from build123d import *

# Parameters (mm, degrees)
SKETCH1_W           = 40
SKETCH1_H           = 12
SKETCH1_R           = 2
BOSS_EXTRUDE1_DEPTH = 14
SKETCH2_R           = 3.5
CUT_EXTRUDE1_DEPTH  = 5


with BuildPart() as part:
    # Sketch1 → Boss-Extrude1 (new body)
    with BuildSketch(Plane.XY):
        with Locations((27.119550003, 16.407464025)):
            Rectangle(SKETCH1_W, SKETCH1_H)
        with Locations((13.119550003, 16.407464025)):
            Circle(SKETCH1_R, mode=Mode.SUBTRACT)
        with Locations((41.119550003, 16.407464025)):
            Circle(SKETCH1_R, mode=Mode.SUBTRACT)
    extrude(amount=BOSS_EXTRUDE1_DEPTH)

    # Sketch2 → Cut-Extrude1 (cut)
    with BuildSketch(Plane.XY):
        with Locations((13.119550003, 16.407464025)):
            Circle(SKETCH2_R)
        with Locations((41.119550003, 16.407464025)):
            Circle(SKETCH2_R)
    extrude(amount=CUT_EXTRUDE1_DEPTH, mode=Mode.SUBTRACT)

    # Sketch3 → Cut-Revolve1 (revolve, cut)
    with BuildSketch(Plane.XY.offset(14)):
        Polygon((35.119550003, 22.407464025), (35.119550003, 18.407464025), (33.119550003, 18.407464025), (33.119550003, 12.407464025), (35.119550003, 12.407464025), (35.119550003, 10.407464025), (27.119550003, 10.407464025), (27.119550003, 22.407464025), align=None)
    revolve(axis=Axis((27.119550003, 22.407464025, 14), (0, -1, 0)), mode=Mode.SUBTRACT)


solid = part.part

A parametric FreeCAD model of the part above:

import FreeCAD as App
import Part
import Sketcher
Q = App.Units.Quantity

doc = App.newDocument("Part")
params = doc.addObject("Spreadsheet::Sheet", "Params")
for row, (alias, value) in enumerate([
    ("sketch1_diameter", "4 mm"),
    ("sketch1_width", "40 mm"),
    ("sketch1_height", "12 mm"),
    ("pad1_length", "14 mm"),
    ("sketch2_diameter", "7 mm"),
    ("pocket1_length", "5 mm"),
    ("sketch3_width", "8 mm"),
    ("sketch3_width2", "2 mm"),
    ("sketch3_height", "4 mm"),
    ("sketch3_height2", "12 mm"),
    ("groove_angle", "360 deg"),
], start=1):
    params.set(f"A{row}", alias)
    params.set(f"B{row}", "=" + value)
    params.setAlias(f"B{row}", alias)

body = doc.addObject("PartDesign::Body", "Body")

sketch1 = body.newObject("Sketcher::SketchObject", "Sketch")
sketch1.AttachmentSupport = (doc.getObject("XY_Plane"), [""])
sketch1.MapMode = "FlatFace"
sketch1.addGeometry([
    Part.LineSegment(App.Vector(7.1, 22.4, 0), App.Vector(7.1, 10.4, 0)),
    Part.LineSegment(App.Vector(7.1, 10.4, 0), App.Vector(47.1, 10.4, 0)),
    Part.LineSegment(App.Vector(47.1, 10.4, 0), App.Vector(47.1, 22.4, 0)),
    Part.LineSegment(App.Vector(47.1, 22.4, 0), App.Vector(7.1, 22.4, 0)),
    Part.Circle(App.Vector(13.1, 16.4, 0), App.Vector(0, 0, 1), 2),
    Part.Circle(App.Vector(41.1, 16.4, 0), App.Vector(0, 0, 1), 2),
], False)
sketch1.addConstraint([
    Sketcher.Constraint("Coincident", 0, 2, 1, 1),
    Sketcher.Constraint("Coincident", 1, 2, 2, 1),
    Sketcher.Constraint("Coincident", 2, 2, 3, 1),
    Sketcher.Constraint("Coincident", 3, 2, 0, 1),
    Sketcher.Constraint("Vertical", 0),
    Sketcher.Constraint("Horizontal", 1),
    Sketcher.Constraint("Vertical", 2),
    Sketcher.Constraint("Horizontal", 3),
    Sketcher.Constraint("Equal", 4, 5),
    Sketcher.Constraint("Horizontal", 4, 3, 5, 3),
    Sketcher.Constraint("Diameter", 4, Q("4 mm")),
    Sketcher.Constraint("DistanceX", 1, 1, 1, 2, Q("40 mm")),
    Sketcher.Constraint("DistanceY", 0, 2, 0, 1, Q("12 mm")),
    Sketcher.Constraint("DistanceX", 4, 3, 5, 3, Q("28 mm")),
    Sketcher.Constraint("DistanceX", 0, 2, 4, 3, Q("6 mm")),
    Sketcher.Constraint("DistanceY", 0, 2, 4, 3, Q("6 mm")),
    Sketcher.Constraint("DistanceX", -1, 1, 4, 3, Q("13.11955 mm")),
    Sketcher.Constraint("DistanceY", -1, 1, 4, 3, Q("16.407464 mm")),
])
sketch1.setExpression("Constraints[10]", "Params.sketch1_diameter")
sketch1.setExpression("Constraints[11]", "Params.sketch1_width")
sketch1.setExpression("Constraints[12]", "Params.sketch1_height")
pad1 = body.newObject("PartDesign::Pad", "Pad")
pad1.Profile = sketch1
pad1.setExpression("Length", "Params.pad1_length")

sketch2 = body.newObject("Sketcher::SketchObject", "Sketch001")
sketch2.AttachmentSupport = (doc.getObject("XY_Plane"), [""])
sketch2.MapMode = "FlatFace"
sketch2.addGeometry([
    Part.Circle(App.Vector(13.1, 16.4, 0), App.Vector(0, 0, 1), 3.5),
    Part.Circle(App.Vector(41.1, 16.4, 0), App.Vector(0, 0, 1), 3.5),
], False)
sketch2.addConstraint([
    Sketcher.Constraint("Equal", 0, 1),
    Sketcher.Constraint("Horizontal", 0, 3, 1, 3),
    Sketcher.Constraint("Diameter", 0, Q("7 mm")),
    Sketcher.Constraint("DistanceX", 0, 3, 1, 3, Q("28 mm")),
    Sketcher.Constraint("DistanceX", -1, 1, 0, 3, Q("13.11955 mm")),
    Sketcher.Constraint("DistanceY", -1, 1, 0, 3, Q("16.407464 mm")),
])
sketch2.setExpression("Constraints[2]", "Params.sketch2_diameter")
pocket1 = body.newObject("PartDesign::Pocket", "Pocket")
pocket1.Profile = sketch2
pocket1.setExpression("Length", "Params.pocket1_length")
pocket1.Reversed = True

sketch3 = body.newObject("Sketcher::SketchObject", "Sketch002")
sketch3.AttachmentSupport = (doc.getObject("XY_Plane"), [""])
sketch3.MapMode = "FlatFace"
sketch3.AttachmentOffset = App.Placement(App.Vector(0, 0, 14), App.Rotation())
sketch3.addGeometry([
    Part.LineSegment(App.Vector(35.1, 18.4, 0), App.Vector(35.1, 22.4, 0)),
    Part.LineSegment(App.Vector(35.1, 22.4, 0), App.Vector(27.1, 22.4, 0)),
    Part.LineSegment(App.Vector(27.1, 22.4, 0), App.Vector(27.1, 10.4, 0)),
    Part.LineSegment(App.Vector(27.1, 10.4, 0), App.Vector(35.1, 10.4, 0)),
    Part.LineSegment(App.Vector(35.1, 10.4, 0), App.Vector(35.1, 12.4, 0)),
    Part.LineSegment(App.Vector(35.1, 12.4, 0), App.Vector(33.1, 12.4, 0)),
    Part.LineSegment(App.Vector(33.1, 12.4, 0), App.Vector(33.1, 18.4, 0)),
    Part.LineSegment(App.Vector(33.1, 18.4, 0), App.Vector(35.1, 18.4, 0)),
], False)
sketch3.addGeometry(Part.LineSegment(App.Vector(27.1, 22.4, 0), App.Vector(27.1, 10.4, 0)), True)
sketch3.addConstraint([
    Sketcher.Constraint("Coincident", 0, 2, 1, 1),
    Sketcher.Constraint("Coincident", 1, 2, 2, 1),
    Sketcher.Constraint("Coincident", 2, 2, 3, 1),
    Sketcher.Constraint("Coincident", 3, 2, 4, 1),
    Sketcher.Constraint("Coincident", 4, 2, 5, 1),
    Sketcher.Constraint("Coincident", 5, 2, 6, 1),
    Sketcher.Constraint("Coincident", 6, 2, 7, 1),
    Sketcher.Constraint("Coincident", 7, 2, 0, 1),
    Sketcher.Constraint("Vertical", 0),
    Sketcher.Constraint("Horizontal", 1),
    Sketcher.Constraint("Vertical", 2),
    Sketcher.Constraint("Horizontal", 3),
    Sketcher.Constraint("Vertical", 4),
    Sketcher.Constraint("Horizontal", 5),
    Sketcher.Constraint("Vertical", 6),
    Sketcher.Constraint("Horizontal", 7),
    Sketcher.Constraint("Vertical", 8),
    Sketcher.Constraint("Coincident", 8, 1, 1, 2),
    Sketcher.Constraint("Horizontal", 3, 2, 8, 2),
    Sketcher.Constraint("Vertical", 0, 2, 3, 2),
    Sketcher.Constraint("Equal", 7, 4),
    Sketcher.Constraint("DistanceX", 1, 2, 1, 1, Q("8 mm")),
    Sketcher.Constraint("DistanceX", 5, 2, 5, 1, Q("2 mm")),
    Sketcher.Constraint("DistanceY", 0, 1, 0, 2, Q("4 mm")),
    Sketcher.Constraint("DistanceY", 2, 2, 2, 1, Q("12 mm")),
    Sketcher.Constraint("DistanceX", -1, 1, 0, 2, Q("35.11955 mm")),
    Sketcher.Constraint("DistanceY", -1, 1, 0, 2, Q("22.407464 mm")),
])
sketch3.setExpression("Constraints[21]", "Params.sketch3_width")
sketch3.setExpression("Constraints[22]", "Params.sketch3_width2")
sketch3.setExpression("Constraints[23]", "Params.sketch3_height")
sketch3.setExpression("Constraints[24]", "Params.sketch3_height2")
groove = body.newObject("PartDesign::Groove", "Groove")
groove.Profile = sketch3
groove.ReferenceAxis = (sketch3, ["Axis0"])
groove.setExpression("Angle", "Params.groove_angle")

doc.recompute()
